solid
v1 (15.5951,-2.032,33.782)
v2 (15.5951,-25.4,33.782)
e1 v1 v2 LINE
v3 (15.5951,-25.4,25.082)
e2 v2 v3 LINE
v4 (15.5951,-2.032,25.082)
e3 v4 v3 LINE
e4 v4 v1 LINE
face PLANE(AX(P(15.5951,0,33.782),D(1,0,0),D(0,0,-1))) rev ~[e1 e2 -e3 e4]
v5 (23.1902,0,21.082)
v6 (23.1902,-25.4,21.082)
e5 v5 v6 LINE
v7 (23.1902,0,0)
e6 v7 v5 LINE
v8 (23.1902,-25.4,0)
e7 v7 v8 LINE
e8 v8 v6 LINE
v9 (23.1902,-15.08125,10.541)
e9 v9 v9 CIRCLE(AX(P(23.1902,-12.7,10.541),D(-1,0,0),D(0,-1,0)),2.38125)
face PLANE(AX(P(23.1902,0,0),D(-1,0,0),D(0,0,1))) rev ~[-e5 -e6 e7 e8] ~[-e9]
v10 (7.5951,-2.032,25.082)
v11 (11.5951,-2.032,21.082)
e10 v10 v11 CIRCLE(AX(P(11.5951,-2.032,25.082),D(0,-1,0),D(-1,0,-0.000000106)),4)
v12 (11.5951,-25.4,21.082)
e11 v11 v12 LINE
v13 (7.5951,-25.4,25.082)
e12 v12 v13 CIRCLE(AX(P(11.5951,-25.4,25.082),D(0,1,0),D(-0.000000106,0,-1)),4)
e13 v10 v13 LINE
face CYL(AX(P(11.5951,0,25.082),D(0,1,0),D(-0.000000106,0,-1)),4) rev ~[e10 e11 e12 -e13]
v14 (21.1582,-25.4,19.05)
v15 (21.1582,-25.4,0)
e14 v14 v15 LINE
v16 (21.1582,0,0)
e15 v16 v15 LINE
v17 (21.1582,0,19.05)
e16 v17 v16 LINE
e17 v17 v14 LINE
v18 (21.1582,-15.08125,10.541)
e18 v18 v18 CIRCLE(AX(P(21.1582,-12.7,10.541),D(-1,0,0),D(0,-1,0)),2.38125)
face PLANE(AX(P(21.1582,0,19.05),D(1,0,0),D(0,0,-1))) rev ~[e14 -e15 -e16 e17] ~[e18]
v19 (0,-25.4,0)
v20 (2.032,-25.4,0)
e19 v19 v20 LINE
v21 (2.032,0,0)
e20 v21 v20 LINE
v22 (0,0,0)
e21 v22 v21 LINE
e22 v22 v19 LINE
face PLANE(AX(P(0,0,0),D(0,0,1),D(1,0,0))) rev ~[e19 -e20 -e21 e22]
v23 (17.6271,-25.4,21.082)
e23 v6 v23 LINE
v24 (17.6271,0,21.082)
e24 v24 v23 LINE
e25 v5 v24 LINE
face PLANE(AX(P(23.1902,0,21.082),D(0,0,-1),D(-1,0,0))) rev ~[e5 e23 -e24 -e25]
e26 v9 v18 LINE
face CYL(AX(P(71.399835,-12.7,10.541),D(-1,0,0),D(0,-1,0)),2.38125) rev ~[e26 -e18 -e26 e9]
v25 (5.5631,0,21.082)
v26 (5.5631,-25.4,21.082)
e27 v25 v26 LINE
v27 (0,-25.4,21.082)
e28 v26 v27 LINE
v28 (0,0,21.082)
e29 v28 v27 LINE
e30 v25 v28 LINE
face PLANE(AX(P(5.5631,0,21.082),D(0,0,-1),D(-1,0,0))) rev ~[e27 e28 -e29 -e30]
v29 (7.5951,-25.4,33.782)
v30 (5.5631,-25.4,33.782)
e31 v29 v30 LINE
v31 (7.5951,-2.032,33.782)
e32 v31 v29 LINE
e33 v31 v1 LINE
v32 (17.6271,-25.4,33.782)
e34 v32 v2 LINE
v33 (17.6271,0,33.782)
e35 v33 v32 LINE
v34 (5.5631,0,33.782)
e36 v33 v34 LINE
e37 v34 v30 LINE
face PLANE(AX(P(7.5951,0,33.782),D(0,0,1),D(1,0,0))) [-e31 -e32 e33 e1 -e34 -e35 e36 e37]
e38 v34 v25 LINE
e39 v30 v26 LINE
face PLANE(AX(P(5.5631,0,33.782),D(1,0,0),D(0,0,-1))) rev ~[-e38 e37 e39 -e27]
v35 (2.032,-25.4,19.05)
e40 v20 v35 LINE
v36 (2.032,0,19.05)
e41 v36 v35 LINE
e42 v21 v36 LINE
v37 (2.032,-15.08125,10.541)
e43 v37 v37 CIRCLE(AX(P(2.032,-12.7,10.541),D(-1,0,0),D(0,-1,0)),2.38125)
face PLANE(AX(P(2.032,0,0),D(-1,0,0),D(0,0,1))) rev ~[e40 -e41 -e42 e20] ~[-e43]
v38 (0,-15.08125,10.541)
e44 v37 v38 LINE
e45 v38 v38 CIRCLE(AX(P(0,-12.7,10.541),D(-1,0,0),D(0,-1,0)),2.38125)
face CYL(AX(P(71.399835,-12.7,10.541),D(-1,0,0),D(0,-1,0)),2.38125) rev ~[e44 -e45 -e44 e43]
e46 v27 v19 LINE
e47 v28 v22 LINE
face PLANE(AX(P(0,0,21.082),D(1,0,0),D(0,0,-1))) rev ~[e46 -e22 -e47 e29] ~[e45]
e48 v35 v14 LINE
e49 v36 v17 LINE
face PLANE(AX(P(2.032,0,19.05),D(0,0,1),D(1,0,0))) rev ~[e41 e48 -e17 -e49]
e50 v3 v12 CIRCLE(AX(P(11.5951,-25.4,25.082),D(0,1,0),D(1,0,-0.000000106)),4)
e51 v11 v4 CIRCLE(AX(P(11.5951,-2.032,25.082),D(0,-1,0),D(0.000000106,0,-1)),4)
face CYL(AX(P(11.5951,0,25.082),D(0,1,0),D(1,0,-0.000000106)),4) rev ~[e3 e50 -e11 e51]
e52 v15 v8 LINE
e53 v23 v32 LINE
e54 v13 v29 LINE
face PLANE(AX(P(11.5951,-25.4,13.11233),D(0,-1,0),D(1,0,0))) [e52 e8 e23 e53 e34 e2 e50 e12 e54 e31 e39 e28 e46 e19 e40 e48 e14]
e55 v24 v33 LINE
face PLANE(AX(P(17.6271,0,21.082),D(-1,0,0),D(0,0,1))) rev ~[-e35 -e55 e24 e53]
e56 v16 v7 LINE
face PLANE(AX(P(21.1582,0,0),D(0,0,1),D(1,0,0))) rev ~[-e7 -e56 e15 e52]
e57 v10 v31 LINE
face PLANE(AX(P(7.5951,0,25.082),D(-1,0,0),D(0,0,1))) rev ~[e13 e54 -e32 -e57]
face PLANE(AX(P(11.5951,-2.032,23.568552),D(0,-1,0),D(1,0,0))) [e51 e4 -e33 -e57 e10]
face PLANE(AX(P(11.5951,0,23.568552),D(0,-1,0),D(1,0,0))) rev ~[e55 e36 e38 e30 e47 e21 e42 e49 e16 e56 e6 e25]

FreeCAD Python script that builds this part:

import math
import FreeCAD as App
import Part
import Sketcher
Q = App.Units.Quantity

doc = App.newDocument("Part")
body = doc.addObject("PartDesign::Body", "Body")

# Sketch on XZ plane
sketch1 = body.newObject("Sketcher::SketchObject", "Sketch")
sketch1.AttachmentSupport = (doc.getObject("XZ_Plane"), [""])
sketch1.MapMode = "FlatFace"
sketch1.addGeometry([
    Part.LineSegment(App.Vector(0, 21.082, 0), App.Vector(0, 0, 0)),  # 0
    Part.LineSegment(App.Vector(0, 0, 0), App.Vector(2.032, 0, 0)),  # 1
    Part.LineSegment(App.Vector(2.032, 0, 0), App.Vector(2.032, 19.05, 0)),  # 2
    Part.LineSegment(App.Vector(2.032, 19.05, 0), App.Vector(21.1582, 19.05, 0)),  # 3
    Part.LineSegment(App.Vector(21.1582, 19.05, 0), App.Vector(21.1582, 0, 0)),  # 4
    Part.LineSegment(App.Vector(21.1582, 0, 0), App.Vector(23.1902, 0, 0)),  # 5
    Part.LineSegment(App.Vector(23.1902, 0, 0), App.Vector(23.1902, 21.082, 0)),  # 6
    Part.LineSegment(App.Vector(23.1902, 21.082, 0), App.Vector(17.6271, 21.082, 0)),  # 7
    Part.LineSegment(App.Vector(17.6271, 21.082, 0), App.Vector(17.6271, 33.782, 0)),  # 8
    Part.LineSegment(App.Vector(17.6271, 33.782, 0), App.Vector(15.5951, 33.782, 0)),  # 9
    Part.LineSegment(App.Vector(15.5951, 33.782, 0), App.Vector(15.5951, 25.082, 0)),  # 10
    Part.ArcOfCircle(Part.Circle(App.Vector(11.5951, 25.082, 0), App.Vector(0, 0, 1), 4), math.radians(-89.999994), math.radians(-0.000006)),  # 11
    Part.ArcOfCircle(Part.Circle(App.Vector(11.5951, 25.082, 0), App.Vector(0, 0, 1), 4), math.radians(-179.999994), math.radians(-90.000006)),  # 12
    Part.LineSegment(App.Vector(7.5951, 25.082, 0), App.Vector(7.5951, 33.782, 0)),  # 13
    Part.LineSegment(App.Vector(7.5951, 33.782, 0), App.Vector(5.5631, 33.782, 0)),  # 14
    Part.LineSegment(App.Vector(5.5631, 33.782, 0), App.Vector(5.5631, 21.082, 0)),  # 15
    Part.LineSegment(App.Vector(5.5631, 21.082, 0), App.Vector(0, 21.082, 0)),  # 16
], False)
sketch1.addConstraint([
    Sketcher.Constraint("Coincident", 0, 2, 1, 1),
    Sketcher.Constraint("Coincident", 1, 2, 2, 1),
    Sketcher.Constraint("Coincident", 2, 2, 3, 1),
    Sketcher.Constraint("Coincident", 3, 2, 4, 1),
    Sketcher.Constraint("Coincident", 4, 2, 5, 1),
    Sketcher.Constraint("Coincident", 5, 2, 6, 1),
    Sketcher.Constraint("Coincident", 6, 2, 7, 1),
    Sketcher.Constraint("Coincident", 7, 2, 8, 1),
    Sketcher.Constraint("Coincident", 8, 2, 9, 1),
    Sketcher.Constraint("Coincident", 9, 2, 10, 1),
    Sketcher.Constraint("Tangent", 10, 2, 11, 2),
    Sketcher.Constraint("Tangent", 11, 1, 12, 2),
    Sketcher.Constraint("Tangent", 12, 1, 13, 1),
    Sketcher.Constraint("Coincident", 13, 2, 14, 1),
    Sketcher.Constraint("Coincident", 14, 2, 15, 1),
    Sketcher.Constraint("Coincident", 15, 2, 16, 1),
    Sketcher.Constraint("Coincident", 16, 2, 0, 1),
    Sketcher.Constraint("Vertical", 0),
    Sketcher.Constraint("Horizontal", 1),
    Sketcher.Constraint("Vertical", 2),
    Sketcher.Constraint("Horizontal", 3),
    Sketcher.Constraint("Vertical", 4),
    Sketcher.Constraint("Horizontal", 5),
    Sketcher.Constraint("Vertical", 6),
    Sketcher.Constraint("Horizontal", 7),
    Sketcher.Constraint("Vertical", 8),
    Sketcher.Constraint("Horizontal", 9),
    Sketcher.Constraint("Vertical", 10),
    Sketcher.Constraint("Vertical", 13),
    Sketcher.Constraint("Horizontal", 14),
    Sketcher.Constraint("Vertical", 15),
    Sketcher.Constraint("Horizontal", 16),
    Sketcher.Constraint("Coincident", 0, 2, -1, 1),
    Sketcher.Constraint("Equal", 11, 12),
    Sketcher.Constraint("PointOnObject", 4, 2, -1),
    Sketcher.Constraint("Horizontal", 7, 2, 11, 1),
    Sketcher.Constraint("Horizontal", 9, 2, 13, 2),
    Sketcher.Constraint("Horizontal", 11, 1, 15, 2),
    Sketcher.Constraint("Vertical", 12, 3, 11, 1),
    Sketcher.Constraint("Equal", 1, 5),
    Sketcher.Constraint("Equal", 5, 9),
    Sketcher.Constraint("Equal", 9, 14),
    Sketcher.Constraint("Equal", 7, 16),
    Sketcher.Constraint("DistanceY", 8, 1, 8, 2, Q("0.5 in")),
    Sketcher.Constraint("DistanceX", 1, 1, 1, 2, Q("0.08 in")),
    Sketcher.Constraint("DistanceY", 0, 2, 0, 1, Q("0.83 in")),
    Sketcher.Constraint("DistanceY", 2, 1, 2, 2, Q("0.75 in")),
    Sketcher.Constraint("DistanceX", 3, 1, 3, 2, Q("0.753 in")),
    Sketcher.Constraint("Radius", 11, Q("4 mm")),
])
pad1 = body.newObject("PartDesign::Pad", "Pad")
pad1.Profile = sketch1
pad1.Length = Q("1 in")

# Sketch on XZ plane
sketch2 = body.newObject("Sketcher::SketchObject", "Sketch001")
sketch2.AttachmentSupport = (doc.getObject("XZ_Plane"), [""])
sketch2.MapMode = "FlatFace"
sketch2.addGeometry([
    Part.ArcOfCircle(Part.Circle(App.Vector(11.5951, 25.082, 0), App.Vector(0, 0, 1), 4), math.radians(-179.999994), math.radians(-90.000006)),  # 0
    Part.ArcOfCircle(Part.Circle(App.Vector(11.5951, 25.082, 0), App.Vector(0, 0, 1), 4), math.radians(-89.999994), math.radians(-0.000006)),  # 1
    Part.LineSegment(App.Vector(15.5951, 25.082, 0), App.Vector(15.5951, 33.782, 0)),  # 2
    Part.LineSegment(App.Vector(15.5951, 33.782, 0), App.Vector(7.5951, 33.782, 0)),  # 3
    Part.LineSegment(App.Vector(7.5951, 33.782, 0), App.Vector(7.5951, 25.082, 0)),  # 4
], False)
sketch2.addConstraint([
    Sketcher.Constraint("Tangent", 0, 2, 1, 1),
    Sketcher.Constraint("Tangent", 1, 2, 2, 1),
    Sketcher.Constraint("Coincident", 2, 2, 3, 1),
    Sketcher.Constraint("Coincident", 3, 2, 4, 1),
    Sketcher.Constraint("Tangent", 4, 2, 0, 1),
    Sketcher.Constraint("Vertical", 2),
    Sketcher.Constraint("Horizontal", 3),
    Sketcher.Constraint("Vertical", 4),
    Sketcher.Constraint("Equal", 0, 1),
    Sketcher.Constraint("Vertical", 1, 3, 0, 2),
    Sketcher.Constraint("DistanceY", 0, 2, 2, 2, Q("0.5 in")),
    Sketcher.Constraint("DistanceY", -1, 1, 0, 2, Q("0.83 in")),
    Sketcher.Constraint("Radius", 0, Q("4 mm")),
    Sketcher.Constraint("DistanceX", -1, 1, 0, 3, Q("0.4565 in")),
])
pad2 = body.newObject("PartDesign::Pad", "Pad001")
pad2.Profile = sketch2
pad2.Length = Q("0.08 in")

# Sketch on YZ plane
sketch3 = body.newObject("Sketcher::SketchObject", "Sketch002")
sketch3.AttachmentSupport = (doc.getObject("YZ_Plane"), [""])
sketch3.MapMode = "FlatFace"
sketch3.AttachmentOffset = App.Placement(App.Vector(0, 0, 0.913 * 25.4), App.Rotation())
sketch3.addGeometry(Part.Circle(App.Vector(-12.7, 10.541, 0), App.Vector(0, 0, 1), 2.38125), False)
sketch3.addConstraint([
    Sketcher.Constraint("Diameter", 0, Q("0.1875 in")),
    Sketcher.Constraint("DistanceX", 0, 3, -1, 1, Q("0.5 in")),
    Sketcher.Constraint("DistanceY", -1, 1, 0, 3, Q("0.415 in")),
])
doc.recompute()
hole = body.newObject("PartDesign::Hole", "Hole")
hole.Profile = sketch3
hole.ThreadType = "None"
hole.Diameter = Q("0.1875 in")
hole.DepthType = "ThroughAll"

doc.recompute()
